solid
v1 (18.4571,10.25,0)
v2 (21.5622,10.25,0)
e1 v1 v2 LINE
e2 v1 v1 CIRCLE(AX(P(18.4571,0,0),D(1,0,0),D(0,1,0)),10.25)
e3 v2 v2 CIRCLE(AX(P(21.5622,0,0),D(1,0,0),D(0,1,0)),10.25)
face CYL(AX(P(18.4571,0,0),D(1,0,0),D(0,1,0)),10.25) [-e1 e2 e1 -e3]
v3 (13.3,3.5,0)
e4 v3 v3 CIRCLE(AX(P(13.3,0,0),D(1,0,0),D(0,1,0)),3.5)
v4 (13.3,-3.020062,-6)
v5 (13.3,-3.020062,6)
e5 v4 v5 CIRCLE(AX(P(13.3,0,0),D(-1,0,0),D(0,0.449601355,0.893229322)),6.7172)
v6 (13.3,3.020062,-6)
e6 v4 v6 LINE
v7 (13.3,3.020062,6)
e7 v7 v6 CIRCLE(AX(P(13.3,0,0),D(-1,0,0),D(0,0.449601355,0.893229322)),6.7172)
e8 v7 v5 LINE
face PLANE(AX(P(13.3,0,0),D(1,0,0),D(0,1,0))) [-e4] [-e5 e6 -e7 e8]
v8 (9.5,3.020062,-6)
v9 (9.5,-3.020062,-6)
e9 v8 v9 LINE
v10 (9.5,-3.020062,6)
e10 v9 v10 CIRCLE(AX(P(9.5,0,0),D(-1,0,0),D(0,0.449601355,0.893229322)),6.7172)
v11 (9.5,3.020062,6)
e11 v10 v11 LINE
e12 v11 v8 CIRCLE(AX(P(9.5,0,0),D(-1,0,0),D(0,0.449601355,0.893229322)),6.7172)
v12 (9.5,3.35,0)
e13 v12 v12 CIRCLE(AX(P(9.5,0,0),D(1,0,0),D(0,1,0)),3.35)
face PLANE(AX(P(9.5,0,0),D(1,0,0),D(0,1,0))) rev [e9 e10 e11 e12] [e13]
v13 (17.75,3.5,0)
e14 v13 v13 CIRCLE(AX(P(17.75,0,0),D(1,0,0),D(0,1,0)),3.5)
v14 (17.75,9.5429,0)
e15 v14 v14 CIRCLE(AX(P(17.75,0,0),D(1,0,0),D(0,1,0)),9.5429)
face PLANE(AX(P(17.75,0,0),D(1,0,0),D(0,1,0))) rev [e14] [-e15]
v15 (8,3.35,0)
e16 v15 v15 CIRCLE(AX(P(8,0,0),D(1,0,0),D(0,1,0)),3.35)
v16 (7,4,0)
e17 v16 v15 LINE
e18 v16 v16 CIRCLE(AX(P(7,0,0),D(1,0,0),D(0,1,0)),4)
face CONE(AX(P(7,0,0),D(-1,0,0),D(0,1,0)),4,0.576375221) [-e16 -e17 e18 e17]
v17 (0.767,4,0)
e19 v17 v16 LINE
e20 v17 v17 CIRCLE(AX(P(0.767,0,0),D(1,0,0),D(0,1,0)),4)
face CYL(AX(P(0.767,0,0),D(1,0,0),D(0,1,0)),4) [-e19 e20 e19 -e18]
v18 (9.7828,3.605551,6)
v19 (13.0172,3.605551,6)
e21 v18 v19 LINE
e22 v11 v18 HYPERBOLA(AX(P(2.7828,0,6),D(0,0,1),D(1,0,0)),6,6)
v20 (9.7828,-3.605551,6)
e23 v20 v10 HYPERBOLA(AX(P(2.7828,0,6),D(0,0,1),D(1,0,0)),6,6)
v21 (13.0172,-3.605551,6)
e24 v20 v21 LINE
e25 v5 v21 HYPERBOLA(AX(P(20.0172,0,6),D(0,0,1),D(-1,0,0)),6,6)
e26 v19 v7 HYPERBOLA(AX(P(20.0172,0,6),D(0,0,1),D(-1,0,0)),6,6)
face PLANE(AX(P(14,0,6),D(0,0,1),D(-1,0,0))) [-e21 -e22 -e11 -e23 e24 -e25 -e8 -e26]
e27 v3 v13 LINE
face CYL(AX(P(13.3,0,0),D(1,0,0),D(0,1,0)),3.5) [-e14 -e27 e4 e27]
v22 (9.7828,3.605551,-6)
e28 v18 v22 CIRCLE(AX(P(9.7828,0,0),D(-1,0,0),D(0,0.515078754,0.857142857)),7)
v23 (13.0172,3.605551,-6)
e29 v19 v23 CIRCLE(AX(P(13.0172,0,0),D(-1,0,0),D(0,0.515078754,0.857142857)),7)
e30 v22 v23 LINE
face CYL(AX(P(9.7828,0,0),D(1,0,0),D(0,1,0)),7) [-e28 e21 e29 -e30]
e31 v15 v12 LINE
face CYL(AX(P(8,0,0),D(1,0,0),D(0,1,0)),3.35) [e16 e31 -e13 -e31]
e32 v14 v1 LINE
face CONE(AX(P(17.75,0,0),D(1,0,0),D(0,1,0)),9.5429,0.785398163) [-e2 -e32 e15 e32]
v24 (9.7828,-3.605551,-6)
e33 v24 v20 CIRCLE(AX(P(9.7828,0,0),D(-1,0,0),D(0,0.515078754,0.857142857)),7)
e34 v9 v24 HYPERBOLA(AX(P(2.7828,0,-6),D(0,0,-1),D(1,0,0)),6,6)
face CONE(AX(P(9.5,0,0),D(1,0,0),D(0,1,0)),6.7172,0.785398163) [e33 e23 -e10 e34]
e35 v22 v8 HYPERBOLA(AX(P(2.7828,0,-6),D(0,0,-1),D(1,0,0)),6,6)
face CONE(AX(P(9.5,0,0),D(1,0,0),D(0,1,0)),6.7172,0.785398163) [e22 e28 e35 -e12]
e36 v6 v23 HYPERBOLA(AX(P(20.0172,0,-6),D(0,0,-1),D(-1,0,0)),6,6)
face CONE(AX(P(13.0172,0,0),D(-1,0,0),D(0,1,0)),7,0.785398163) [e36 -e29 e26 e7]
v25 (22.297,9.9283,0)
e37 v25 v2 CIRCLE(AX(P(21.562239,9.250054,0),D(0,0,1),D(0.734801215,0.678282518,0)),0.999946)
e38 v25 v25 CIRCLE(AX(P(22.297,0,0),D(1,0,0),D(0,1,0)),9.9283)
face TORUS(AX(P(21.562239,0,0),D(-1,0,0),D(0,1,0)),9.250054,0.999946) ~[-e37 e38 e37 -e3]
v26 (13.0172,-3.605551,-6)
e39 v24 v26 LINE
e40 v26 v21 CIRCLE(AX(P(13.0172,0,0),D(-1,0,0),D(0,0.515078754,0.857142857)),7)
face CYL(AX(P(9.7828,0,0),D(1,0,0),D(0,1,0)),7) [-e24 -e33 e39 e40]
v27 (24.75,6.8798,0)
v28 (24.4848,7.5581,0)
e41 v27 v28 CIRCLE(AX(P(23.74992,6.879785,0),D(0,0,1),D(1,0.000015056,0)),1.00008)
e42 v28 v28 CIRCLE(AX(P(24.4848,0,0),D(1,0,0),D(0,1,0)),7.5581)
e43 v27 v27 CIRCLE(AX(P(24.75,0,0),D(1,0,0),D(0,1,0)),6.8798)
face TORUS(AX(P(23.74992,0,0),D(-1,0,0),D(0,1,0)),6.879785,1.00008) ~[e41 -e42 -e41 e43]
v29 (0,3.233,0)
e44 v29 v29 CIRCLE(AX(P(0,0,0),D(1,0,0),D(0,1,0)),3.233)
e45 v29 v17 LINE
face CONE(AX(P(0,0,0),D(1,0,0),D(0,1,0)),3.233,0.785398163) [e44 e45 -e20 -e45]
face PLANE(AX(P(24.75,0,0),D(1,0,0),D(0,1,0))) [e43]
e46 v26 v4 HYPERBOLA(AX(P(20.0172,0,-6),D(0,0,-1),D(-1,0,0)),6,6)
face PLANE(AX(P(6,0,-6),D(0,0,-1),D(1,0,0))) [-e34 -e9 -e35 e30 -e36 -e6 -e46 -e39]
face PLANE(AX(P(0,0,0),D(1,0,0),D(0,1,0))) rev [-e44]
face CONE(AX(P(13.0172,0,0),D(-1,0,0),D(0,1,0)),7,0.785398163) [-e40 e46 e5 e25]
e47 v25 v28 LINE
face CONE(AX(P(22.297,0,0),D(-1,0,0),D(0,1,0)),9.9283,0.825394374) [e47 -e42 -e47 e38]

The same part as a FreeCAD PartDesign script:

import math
import FreeCAD as App
import Part
import Sketcher
Q = App.Units.Quantity

doc = App.newDocument("Part")
params = doc.addObject("Spreadsheet::Sheet", "Params")
for row, (alias, value) in enumerate([
    ("sketch1_radius", "1 mm"),
    ("sketch1_length", "1 mm"),
    ("sketch1_width", "1.5 mm"),
    ("sketch1_length2", "0.4 mm"),
    ("sketch1_width2", "24.75 mm"),
    ("revolution_angle", "360 deg"),
    ("sketch2_width", "8 mm"),
    ("pocket1_length", "10 mm"),
    ("sketch3_width", "8 mm"),
    ("pocket2_length", "10 mm"),
], start=1):
    params.set(f"A{row}", alias)
    params.set(f"B{row}", "=" + value)
    params.setAlias(f"B{row}", alias)

body = doc.addObject("PartDesign::Body", "Body")

# Sketch on XY plane
sketch1 = body.newObject("Sketcher::SketchObject", "Sketch")
sketch1.AttachmentSupport = (doc.getObject("XY_Plane"), [""])
sketch1.MapMode = "FlatFace"
sketch1.addGeometry(Part.LineSegment(App.Vector(0, 0, 0), App.Vector(24.75, 0, 0)), False)
sketch1.addGeometry(Part.LineSegment(App.Vector(24.75, 0, 0), App.Vector(24.75, 6.8798, 0)), False)
sketch1.addGeometry(Part.ArcOfCircle(Part.Circle(App.Vector(23.75, 6.8798, 0), App.Vector(0, 0, 1), 1), math.radians(0), math.radians(42.710362)), False)
sketch1.addGeometry(Part.LineSegment(App.Vector(24.4848, 7.5581, 0), App.Vector(22.297, 9.9283, 0)), False)
sketch1.addGeometry(Part.ArcOfCircle(Part.Circle(App.Vector(21.5622, 9.25, 0), App.Vector(0, 0, 1), 1.000011), math.radians(42.710362), math.radians(90)), False)
sketch1.addGeometry(Part.LineSegment(App.Vector(21.5622, 10.25, 0), App.Vector(18.4571, 10.25, 0)), False)
sketch1.addGeometry(Part.LineSegment(App.Vector(18.4571, 10.25, 0), App.Vector(17.75, 9.5429, 0)), False)
sketch1.addGeometry(Part.LineSegment(App.Vector(17.75, 9.5429, 0), App.Vector(17.75, 3.5, 0)), False)
sketch1.addGeometry(Part.LineSegment(App.Vector(17.75, 3.5, 0), App.Vector(13.3, 3.5, 0)), False)
sketch1.addGeometry(Part.LineSegment(App.Vector(13.3, 3.5, 0), App.Vector(13.3, 6.7172, 0)), False)
sketch1.addGeometry(Part.LineSegment(App.Vector(13.3, 6.7172, 0), App.Vector(13.0172, 7, 0)), False)
sketch1.addGeometry(Part.LineSegment(App.Vector(13.0172, 7, 0), App.Vector(9.7828, 7, 0)), False)
sketch1.addGeometry(Part.LineSegment(App.Vector(9.7828, 7, 0), App.Vector(9.5, 6.7172, 0)), False)
sketch1.addGeometry(Part.LineSegment(App.Vector(9.5, 6.7172, 0), App.Vector(9.5, 3.35, 0)), False)
sketch1.addGeometry(Part.LineSegment(App.Vector(9.5, 3.35, 0), App.Vector(8, 3.35, 0)), False)
sketch1.addGeometry(Part.LineSegment(App.Vector(8, 3.35, 0), App.Vector(7, 4, 0)), False)
sketch1.addGeometry(Part.LineSegment(App.Vector(7, 4, 0), App.Vector(0.767, 4, 0)), False)
sketch1.addGeometry(Part.LineSegment(App.Vector(0.767, 4, 0), App.Vector(0, 3.233, 0)), False)
sketch1.addGeometry(Part.LineSegment(App.Vector(0, 3.233, 0), App.Vector(0, 0, 0)), False)
sketch1.addConstraint(Sketcher.Constraint("Coincident", 0, 2, 1, 1))
sketch1.addConstraint(Sketcher.Constraint("Tangent", 1, 2, 2, 1))
sketch1.addConstraint(Sketcher.Constraint("Tangent", 2, 2, 3, 1))
sketch1.addConstraint(Sketcher.Constraint("Tangent", 3, 2, 4, 1))
sketch1.addConstraint(Sketcher.Constraint("Tangent", 4, 2, 5, 1))
sketch1.addConstraint(Sketcher.Constraint("Coincident", 5, 2, 6, 1))
sketch1.addConstraint(Sketcher.Constraint("Coincident", 6, 2, 7, 1))
sketch1.addConstraint(Sketcher.Constraint("Coincident", 7, 2, 8, 1))
sketch1.addConstraint(Sketcher.Constraint("Coincident", 8, 2, 9, 1))
sketch1.addConstraint(Sketcher.Constraint("Coincident", 9, 2, 10, 1))
sketch1.addConstraint(Sketcher.Constraint("Coincident", 10, 2, 11, 1))
sketch1.addConstraint(Sketcher.Constraint("Coincident", 11, 2, 12, 1))
sketch1.addConstraint(Sketcher.Constraint("Coincident", 12, 2, 13, 1))
sketch1.addConstraint(Sketcher.Constraint("Coincident", 13, 2, 14, 1))
sketch1.addConstraint(Sketcher.Constraint("Coincident", 14, 2, 15, 1))
sketch1.addConstraint(Sketcher.Constraint("Coincident", 15, 2, 16, 1))
sketch1.addConstraint(Sketcher.Constraint("Coincident", 16, 2, 17, 1))
sketch1.addConstraint(Sketcher.Constraint("Coincident", 17, 2, 18, 1))
sketch1.addConstraint(Sketcher.Constraint("Coincident", 18, 2, 0, 1))
sketch1.addConstraint(Sketcher.Constraint("Horizontal", 0))
sketch1.addConstraint(Sketcher.Constraint("Vertical", 1))
sketch1.addConstraint(Sketcher.Constraint("Horizontal", 5))
sketch1.addConstraint(Sketcher.Constraint("Vertical", 7))
sketch1.addConstraint(Sketcher.Constraint("Horizontal", 8))
sketch1.addConstraint(Sketcher.Constraint("Vertical", 9))
sketch1.addConstraint(Sketcher.Constraint("Horizontal", 11))
sketch1.addConstraint(Sketcher.Constraint("Vertical", 13))
sketch1.addConstraint(Sketcher.Constraint("Horizontal", 14))
sketch1.addConstraint(Sketcher.Constraint("Horizontal", 16))
sketch1.addConstraint(Sketcher.Constraint("Vertical", 18))
sketch1.addConstraint(Sketcher.Constraint("Coincident", 18, 2, -1, 1))
sketch1.addConstraint(Sketcher.Constraint("Equal", 2, 4))
sketch1.addConstraint(Sketcher.Constraint("Perpendicular", 6, 10))
sketch1.addConstraint(Sketcher.Constraint("Perpendicular", 10, 12))
sketch1.addConstraint(Sketcher.Constraint("Parallel", 12, 17))
sketch1.addConstraint(Sketcher.Constraint("Horizontal", 9, 2, 12, 2))
sketch1.addConstraint(Sketcher.Constraint("Equal", 10, 12))
sketch1.addConstraint(Sketcher.Constraint("Radius", 2, Q("1 mm")))
sketch1.addConstraint(Sketcher.Constraint("Distance", 6, Q("1 mm")))
sketch1.addConstraint(Sketcher.Constraint("DistanceX", 14, 2, 14, 1, Q("1.5 mm")))
sketch1.addConstraint(Sketcher.Constraint("DistanceY", -1, 1, 10, 2, Q("7 mm")))
sketch1.addConstraint(Sketcher.Constraint("DistanceX", -1, 1, 14, 2, Q("8 mm")))
sketch1.addConstraint(Sketcher.Constraint("DistanceX", -1, 1, 15, 2, Q("7 mm")))
sketch1.addConstraint(Sketcher.Constraint("DistanceY", -1, 1, 15, 2, Q("4 mm")))
sketch1.addConstraint(Sketcher.Constraint("DistanceX", 6, 2, 2, 3, Q("6 mm")))
sketch1.addConstraint(Sketcher.Constraint("Distance", 10, Q("0.4 mm")))
sketch1.addConstraint(Sketcher.Constraint("DistanceX", 0, 1, 0, 2, Q("24.75 mm")))
sketch1.addConstraint(Sketcher.Constraint("DistanceX", 8, 2, 8, 1, Q("4.45 mm")))
sketch1.addConstraint(Sketcher.Constraint("DistanceY", -1, 1, 7, 2, Q("3.5 mm")))
sketch1.addConstraint(Sketcher.Constraint("DistanceX", 5, 2, 5, 1, Q("3.105 mm")))
sketch1.addConstraint(Sketcher.Constraint("DistanceX", 16, 2, 16, 1, Q("6.233 mm")))
sketch1.addConstraint(Sketcher.Constraint("DistanceY", 7, 2, 7, 1, Q("6.043 mm")))
sketch1.addConstraint(Sketcher.Constraint("DistanceY", -1, 1, 13, 2, Q("3.35 mm")))
sketch1.addConstraint(Sketcher.Constraint("DistanceX", 5, 2, 3, 2, Q("3.84 mm")))
sketch1.setExpression("Constraints[37]", "Params.sketch1_radius")
sketch1.setExpression("Constraints[38]", "Params.sketch1_length")
sketch1.setExpression("Constraints[39]", "Params.sketch1_width")
sketch1.setExpression("Constraints[45]", "Params.sketch1_length2")
sketch1.setExpression("Constraints[46]", "Params.sketch1_width2")
revolution = body.newObject("PartDesign::Revolution", "Revolution")
revolution.Profile = sketch1
revolution.ReferenceAxis = (sketch1, ["H_Axis"])
revolution.setExpression("Angle", "Params.revolution_angle")

# Sketch on XZ plane
sketch2 = body.newObject("Sketcher::SketchObject", "Sketch001")
sketch2.AttachmentSupport = (doc.getObject("XZ_Plane"), [""])
sketch2.MapMode = "FlatFace"
sketch2.addGeometry(Part.LineSegment(App.Vector(14, 6, 0), App.Vector(6, 6, 0)), False)
sketch2.addGeometry(Part.LineSegment(App.Vector(6, 6, 0), App.Vector(6, 14, 0)), False)
sketch2.addGeometry(Part.LineSegment(App.Vector(6, 14, 0), App.Vector(14, 14, 0)), False)
sketch2.addGeometry(Part.LineSegment(App.Vector(14, 14, 0), App.Vector(14, 6, 0)), False)
sketch2.addConstraint(Sketcher.Constraint("Coincident", 0, 2, 1, 1))
sketch2.addConstraint(Sketcher.Constraint("Coincident", 1, 2, 2, 1))
sketch2.addConstraint(Sketcher.Constraint("Coincident", 2, 2, 3, 1))
sketch2.addConstraint(Sketcher.Constraint("Coincident", 3, 2, 0, 1))
sketch2.addConstraint(Sketcher.Constraint("Horizontal", 0))
sketch2.addConstraint(Sketcher.Constraint("Vertical", 1))
sketch2.addConstraint(Sketcher.Constraint("Horizontal", 2))
sketch2.addConstraint(Sketcher.Constraint("Vertical", 3))
sketch2.addConstraint(Sketcher.Constraint("Equal", 2, 1))
sketch2.addConstraint(Sketcher.Constraint("DistanceX", 0, 2, 0, 1, Q("8 mm")))
sketch2.addConstraint(Sketcher.Constraint("DistanceX", -1, 1, 0, 2, Q("6 mm")))
sketch2.addConstraint(Sketcher.Constraint("DistanceY", -1, 1, 0, 2, Q("6 mm")))
sketch2.setExpression("Constraints[9]", "Params.sketch2_width")
pocket1 = body.newObject("PartDesign::Pocket", "Pocket")
pocket1.Profile = sketch2
pocket1.setExpression("Length", "Params.pocket1_length")
pocket1.Midplane = True

# Sketch on XZ plane
sketch3 = body.newObject("Sketcher::SketchObject", "Sketch002")
sketch3.AttachmentSupport = (doc.getObject("XZ_Plane"), [""])
sketch3.MapMode = "FlatFace"
sketch3.addGeometry(Part.LineSegment(App.Vector(14, -14, 0), App.Vector(6, -14, 0)), False)
sketch3.addGeometry(Part.LineSegment(App.Vector(6, -14, 0), App.Vector(6, -6, 0)), False)
sketch3.addGeometry(Part.LineSegment(App.Vector(6, -6, 0), App.Vector(14, -6, 0)), False)
sketch3.addGeometry(Part.LineSegment(App.Vector(14, -6, 0), App.Vector(14, -14, 0)), False)
sketch3.addConstraint(Sketcher.Constraint("Coincident", 0, 2, 1, 1))
sketch3.addConstraint(Sketcher.Constraint("Coincident", 1, 2, 2, 1))
sketch3.addConstraint(Sketcher.Constraint("Coincident", 2, 2, 3, 1))
sketch3.addConstraint(Sketcher.Constraint("Coincident", 3, 2, 0, 1))
sketch3.addConstraint(Sketcher.Constraint("Horizontal", 0))
sketch3.addConstraint(Sketcher.Constraint("Vertical", 1))
sketch3.addConstraint(Sketcher.Constraint("Horizontal", 2))
sketch3.addConstraint(Sketcher.Constraint("Vertical", 3))
sketch3.addConstraint(Sketcher.Constraint("Equal", 2, 1))
sketch3.addConstraint(Sketcher.Constraint("DistanceX", 0, 2, 0, 1, Q("8 mm")))
sketch3.addConstraint(Sketcher.Constraint("DistanceX", -1, 1, 0, 2, Q("6 mm")))
sketch3.addConstraint(Sketcher.Constraint("DistanceY", 0, 2, -1, 1, Q("14 mm")))
sketch3.setExpression("Constraints[9]", "Params.sketch3_width")
pocket2 = body.newObject("PartDesign::Pocket", "Pocket001")
pocket2.Profile = sketch3
pocket2.setExpression("Length", "Params.pocket2_length")
pocket2.Midplane = True

doc.recompute()
